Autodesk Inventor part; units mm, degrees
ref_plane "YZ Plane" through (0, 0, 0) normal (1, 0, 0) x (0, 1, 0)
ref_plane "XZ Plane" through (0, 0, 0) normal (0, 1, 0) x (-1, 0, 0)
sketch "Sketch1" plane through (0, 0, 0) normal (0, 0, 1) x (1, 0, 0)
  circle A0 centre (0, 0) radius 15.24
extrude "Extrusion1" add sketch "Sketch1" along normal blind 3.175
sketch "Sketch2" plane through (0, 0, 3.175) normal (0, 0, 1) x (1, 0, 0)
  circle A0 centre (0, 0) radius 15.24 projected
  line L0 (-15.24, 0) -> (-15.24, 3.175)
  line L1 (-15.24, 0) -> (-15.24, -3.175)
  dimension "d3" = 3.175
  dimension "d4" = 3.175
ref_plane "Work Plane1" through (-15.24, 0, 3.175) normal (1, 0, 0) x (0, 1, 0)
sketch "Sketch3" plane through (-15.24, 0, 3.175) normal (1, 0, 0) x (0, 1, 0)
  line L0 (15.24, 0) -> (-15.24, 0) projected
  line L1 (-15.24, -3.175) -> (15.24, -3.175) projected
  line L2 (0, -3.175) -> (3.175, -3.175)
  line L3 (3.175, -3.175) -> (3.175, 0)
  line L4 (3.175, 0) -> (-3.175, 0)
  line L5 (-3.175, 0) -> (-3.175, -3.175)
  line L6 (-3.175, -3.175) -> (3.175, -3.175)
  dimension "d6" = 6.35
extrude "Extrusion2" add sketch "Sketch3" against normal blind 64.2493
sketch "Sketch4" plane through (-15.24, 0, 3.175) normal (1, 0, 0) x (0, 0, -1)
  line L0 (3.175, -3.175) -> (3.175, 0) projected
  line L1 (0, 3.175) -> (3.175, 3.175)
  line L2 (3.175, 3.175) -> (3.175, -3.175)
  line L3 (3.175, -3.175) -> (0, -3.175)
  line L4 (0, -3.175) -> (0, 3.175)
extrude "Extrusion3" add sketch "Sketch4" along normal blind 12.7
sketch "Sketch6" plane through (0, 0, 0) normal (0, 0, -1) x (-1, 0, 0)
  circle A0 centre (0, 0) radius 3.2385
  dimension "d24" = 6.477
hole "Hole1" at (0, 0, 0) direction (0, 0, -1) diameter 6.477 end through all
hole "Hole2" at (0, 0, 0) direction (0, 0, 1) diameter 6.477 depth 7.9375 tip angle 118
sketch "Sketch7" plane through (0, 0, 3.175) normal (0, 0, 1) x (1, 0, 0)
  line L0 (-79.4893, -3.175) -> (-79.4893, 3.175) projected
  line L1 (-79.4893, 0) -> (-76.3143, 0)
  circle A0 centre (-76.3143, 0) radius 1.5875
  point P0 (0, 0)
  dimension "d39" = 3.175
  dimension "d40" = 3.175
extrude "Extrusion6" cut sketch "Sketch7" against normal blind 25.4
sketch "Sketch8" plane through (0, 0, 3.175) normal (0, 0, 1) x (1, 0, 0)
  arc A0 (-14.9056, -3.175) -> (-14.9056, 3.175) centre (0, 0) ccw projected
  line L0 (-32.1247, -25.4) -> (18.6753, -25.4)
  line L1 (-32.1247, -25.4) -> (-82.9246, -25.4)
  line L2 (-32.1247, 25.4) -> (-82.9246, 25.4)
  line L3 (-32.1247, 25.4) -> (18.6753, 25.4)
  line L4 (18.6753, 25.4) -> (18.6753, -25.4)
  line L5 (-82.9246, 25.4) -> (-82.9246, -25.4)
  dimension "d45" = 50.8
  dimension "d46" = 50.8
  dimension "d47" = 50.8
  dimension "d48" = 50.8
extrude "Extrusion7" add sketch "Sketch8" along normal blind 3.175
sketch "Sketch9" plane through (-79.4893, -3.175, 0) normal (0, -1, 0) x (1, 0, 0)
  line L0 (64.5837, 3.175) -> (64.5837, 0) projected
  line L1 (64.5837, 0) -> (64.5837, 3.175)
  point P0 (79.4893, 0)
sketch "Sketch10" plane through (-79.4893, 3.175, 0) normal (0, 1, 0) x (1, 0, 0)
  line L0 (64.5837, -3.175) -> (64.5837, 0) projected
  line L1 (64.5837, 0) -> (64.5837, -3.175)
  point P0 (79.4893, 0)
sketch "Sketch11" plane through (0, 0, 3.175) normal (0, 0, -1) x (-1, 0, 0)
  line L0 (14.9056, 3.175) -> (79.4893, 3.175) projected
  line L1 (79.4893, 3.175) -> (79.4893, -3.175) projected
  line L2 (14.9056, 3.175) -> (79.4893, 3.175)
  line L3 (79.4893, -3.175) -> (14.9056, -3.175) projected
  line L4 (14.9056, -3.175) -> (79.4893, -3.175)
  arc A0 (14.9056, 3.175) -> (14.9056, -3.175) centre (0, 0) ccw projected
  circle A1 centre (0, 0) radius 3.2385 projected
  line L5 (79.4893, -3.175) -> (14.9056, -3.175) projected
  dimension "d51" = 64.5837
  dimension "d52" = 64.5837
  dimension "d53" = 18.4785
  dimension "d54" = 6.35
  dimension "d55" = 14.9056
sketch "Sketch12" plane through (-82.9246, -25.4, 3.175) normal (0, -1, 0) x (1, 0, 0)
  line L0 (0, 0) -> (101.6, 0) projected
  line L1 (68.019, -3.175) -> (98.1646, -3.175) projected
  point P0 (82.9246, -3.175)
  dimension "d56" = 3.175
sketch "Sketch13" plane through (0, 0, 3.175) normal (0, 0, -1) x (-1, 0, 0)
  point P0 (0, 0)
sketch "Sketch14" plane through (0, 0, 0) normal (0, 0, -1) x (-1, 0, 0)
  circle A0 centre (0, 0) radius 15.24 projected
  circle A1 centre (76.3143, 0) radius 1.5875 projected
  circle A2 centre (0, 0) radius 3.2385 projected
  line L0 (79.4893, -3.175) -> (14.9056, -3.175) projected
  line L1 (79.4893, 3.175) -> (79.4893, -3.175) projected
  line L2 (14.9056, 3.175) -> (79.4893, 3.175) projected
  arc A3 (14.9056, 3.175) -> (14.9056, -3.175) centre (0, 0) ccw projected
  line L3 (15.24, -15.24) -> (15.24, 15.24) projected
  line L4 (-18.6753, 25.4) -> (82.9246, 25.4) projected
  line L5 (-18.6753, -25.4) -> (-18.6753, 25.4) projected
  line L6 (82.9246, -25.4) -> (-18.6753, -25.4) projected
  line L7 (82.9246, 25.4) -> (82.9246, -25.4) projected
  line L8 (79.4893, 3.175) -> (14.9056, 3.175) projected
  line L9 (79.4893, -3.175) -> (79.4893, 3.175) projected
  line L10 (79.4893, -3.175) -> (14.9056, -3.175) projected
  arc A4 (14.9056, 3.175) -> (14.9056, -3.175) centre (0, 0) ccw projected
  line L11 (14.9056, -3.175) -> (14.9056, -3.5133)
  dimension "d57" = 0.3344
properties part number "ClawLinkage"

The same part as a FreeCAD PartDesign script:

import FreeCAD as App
import Part
import Sketcher
from FreeCAD import Vector
Q = App.Units.Quantity


def add_polygon(sketch, points):
    """Adds a closed chain of lines whose ends are joined by coincident constraints."""
    first, n = sketch.GeometryCount, len(points)
    for a, b in zip(points, points[1:] + points[:1]):
        sketch.addGeometry(Part.LineSegment(App.Vector(*a, 0), App.Vector(*b, 0)), False)
    for i in range(n):
        sketch.addConstraint(Sketcher.Constraint("Coincident", first + i, 2, first + (i + 1) % n, 1))

doc = App.newDocument("Part")
params = doc.addObject("Spreadsheet::Sheet", "Params")
for row, (alias, value) in enumerate([
    ("sketch1_diameter", "1.2 in"),
    ("pad1_length", "0.125 in"),
    ("sketch2_width", "0.25 in"),
    ("sketch2_height", "0.125 in"),
    ("pad2_length", "2.5295 in"),
    ("sketch3_width", "0.25 in"),
    ("sketch3_height", "0.125 in"),
    ("pad3_length", "0.5 in"),
    ("sketch4_diameter", "0.255 in"),
    ("hole_diameter", "0.255 in"),
    ("sketch5_diameter", "0.255 in"),
    ("hole2_diameter", "0.255 in"),
    ("hole2_depth", "0.3125 in"),
    ("sketch6_diameter", "0.125 in"),
    ("pocket1_length", "1 in"),
    ("sketch7_height", "2 in"),
    ("sketch7_width", "4 in"),
    ("pad4_length", "0.125 in"),
], start=1):
    params.set(f"A{row}", alias)
    params.set(f"B{row}", "=" + value)
    params.setAlias(f"B{row}", alias)

body = doc.addObject("PartDesign::Body", "Body")
body.AllowCompound = True

sketch1 = doc.addObject("Sketcher::SketchObject", "Sketch")
body.addObject(sketch1)
sketch1.AttachmentSupport = (doc.XY_Plane, [""])
sketch1.MapMode = "FlatFace"
sketch1.addGeometry(Part.Circle(Vector(0, 0, 0), Vector(0, 0, 1), 15), False)
sketch1.addConstraint(Sketcher.Constraint("Coincident", 0, 3, -1, 1))
sketch1.addConstraint(Sketcher.Constraint("Diameter", 0, Q("1.2 in")))
sketch1.setExpression("Constraints[1]", "Params.sketch1_diameter")
pad1 = doc.addObject("PartDesign::Pad", "Pad")
body.addObject(pad1)
pad1.Profile = sketch1
pad1.setExpression("Length", "Params.pad1_length")

sketch2 = doc.addObject("Sketcher::SketchObject", "Sketch001")
body.addObject(sketch2)
sketch2.AttachmentSupport = (doc.YZ_Plane, [""])
sketch2.MapMode = "FlatFace"
sketch2.AttachmentOffset = App.Placement(Vector(0, 0, -0.6 * 25.4), App.Rotation())
add_polygon(sketch2, [(3.2, 0), (3.2, 3.2), (-3.2, 3.2), (-3.2, 0)])
sketch2.addConstraint(Sketcher.Constraint("Vertical", 0))
sketch2.addConstraint(Sketcher.Constraint("Horizontal", 1))
sketch2.addConstraint(Sketcher.Constraint("Vertical", 2))
sketch2.addConstraint(Sketcher.Constraint("Horizontal", 3))
sketch2.addConstraint(Sketcher.Constraint("Symmetric", 2, 2, 3, 2, -1, 1))
sketch2.addConstraint(Sketcher.Constraint("DistanceX", 1, 2, 1, 1, Q("0.25 in")))
sketch2.addConstraint(Sketcher.Constraint("DistanceY", 0, 1, 0, 2, Q("0.125 in")))
sketch2.setExpression("Constraints[9]", "Params.sketch2_width")
sketch2.setExpression("Constraints[10]", "Params.sketch2_height")
pad2 = doc.addObject("PartDesign::Pad", "Pad001")
body.addObject(pad2)
pad2.Profile = sketch2
pad2.setExpression("Length", "Params.pad2_length")
pad2.Reversed = True

sketch3 = doc.addObject("Sketcher::SketchObject", "Sketch002")
body.addObject(sketch3)
sketch3.AttachmentSupport = (doc.YZ_Plane, [""])
sketch3.MapMode = "FlatFace"
sketch3.AttachmentOffset = App.Placement(Vector(0, 0, -0.6 * 25.4), App.Rotation())
add_polygon(sketch3, [(-3.2, 3.2), (-3.2, 0), (3.2, 0), (3.2, 3.2)])
sketch3.addConstraint(Sketcher.Constraint("Vertical", 0))
sketch3.addConstraint(Sketcher.Constraint("Horizontal", 1))
sketch3.addConstraint(Sketcher.Constraint("Vertical", 2))
sketch3.addConstraint(Sketcher.Constraint("Horizontal", 3))
sketch3.addConstraint(Sketcher.Constraint("Symmetric", 0, 2, 1, 2, -1, 1))
sketch3.addConstraint(Sketcher.Constraint("DistanceX", 1, 1, 1, 2, Q("0.25 in")))
sketch3.addConstraint(Sketcher.Constraint("DistanceY", 0, 2, 0, 1, Q("0.125 in")))
sketch3.setExpression("Constraints[9]", "Params.sketch3_width")
sketch3.setExpression("Constraints[10]", "Params.sketch3_height")
pad3 = doc.addObject("PartDesign::Pad", "Pad002")
body.addObject(pad3)
pad3.Profile = sketch3
pad3.setExpression("Length", "Params.pad3_length")

sketch4 = doc.addObject("Sketcher::SketchObject", "Sketch003")
body.addObject(sketch4)
sketch4.AttachmentSupport = (doc.XY_Plane, [""])
sketch4.MapMode = "FlatFace"
sketch4.addGeometry(Part.Circle(Vector(0, 0, 0), Vector(0, 0, 1), 3.2), False)
sketch4.addConstraint(Sketcher.Constraint("Coincident", 0, 3, -1, 1))
sketch4.addConstraint(Sketcher.Constraint("Diameter", 0, Q("0.255 in")))
sketch4.setExpression("Constraints[1]", "Params.sketch4_diameter")
doc.recompute()
hole = doc.addObject("PartDesign::Hole", "Hole")
body.addObject(hole)
hole.Profile = sketch4
hole.ThreadType = "None"
hole.setExpression("Diameter", "Params.hole_diameter")
hole.DepthType = "ThroughAll"

sketch5 = doc.addObject("Sketcher::SketchObject", "Sketch004")
body.addObject(sketch5)
sketch5.AttachmentSupport = (doc.XY_Plane, [""])
sketch5.MapMode = "FlatFace"
sketch5.addGeometry(Part.Circle(Vector(0, 0, 0), Vector(0, 0, 1), 3.2), False)
sketch5.addConstraint(Sketcher.Constraint("Coincident", 0, 3, -1, 1))
sketch5.addConstraint(Sketcher.Constraint("Diameter", 0, Q("0.255 in")))
sketch5.setExpression("Constraints[1]", "Params.sketch5_diameter")
doc.recompute()
hole2 = doc.addObject("PartDesign::Hole", "Hole001")
body.addObject(hole2)
hole2.Profile = sketch5
hole2.ThreadType = "None"
hole2.setExpression("Diameter", "Params.hole2_diameter")
hole2.DepthType = "Dimension"
hole2.setExpression("Depth", "Params.hole2_depth")
hole2.DrillPoint = "Angled"
hole2.DrillPointAngle = 118
hole2.Reversed = True

sketch6 = doc.addObject("Sketcher::SketchObject", "Sketch005")
body.addObject(sketch6)
sketch6.AttachmentSupport = (doc.XY_Plane, [""])
sketch6.MapMode = "FlatFace"
sketch6.AttachmentOffset = App.Placement(Vector(0, 0, 0.125 * 25.4), App.Rotation())
sketch6.addGeometry(Part.Circle(Vector(-76.3, 0, 0), Vector(0, 0, 1), 1.6), False)
sketch6.addConstraint(Sketcher.Constraint("PointOnObject", 0, 3, -1))
sketch6.addConstraint(Sketcher.Constraint("Diameter", 0, Q("0.125 in")))
sketch6.addConstraint(Sketcher.Constraint("DistanceX", 0, 3, -1, 1, Q("3.0045 in")))
sketch6.setExpression("Constraints[1]", "Params.sketch6_diameter")
pocket1 = doc.addObject("PartDesign::Pocket", "Pocket")
body.addObject(pocket1)
pocket1.Profile = sketch6
pocket1.setExpression("Length", "Params.pocket1_length")

sketch7 = doc.addObject("Sketcher::SketchObject", "Sketch006")
body.addObject(sketch7)
sketch7.AttachmentSupport = (doc.XY_Plane, [""])
sketch7.MapMode = "FlatFace"
sketch7.AttachmentOffset = App.Placement(Vector(0, 0, 0.125 * 25.4), App.Rotation())
add_polygon(sketch7, [(-83, -25), (19, -25), (19, 25), (-83, 25)])
sketch7.addConstraint(Sketcher.Constraint("Horizontal", 0))
sketch7.addConstraint(Sketcher.Constraint("Vertical", 1))
sketch7.addConstraint(Sketcher.Constraint("Horizontal", 2))
sketch7.addConstraint(Sketcher.Constraint("Vertical", 3))
sketch7.addConstraint(Sketcher.Constraint("DistanceY", 1, 1, 1, 2, Q("2 in")))
sketch7.addConstraint(Sketcher.Constraint("DistanceX", 0, 1, 0, 2, Q("4 in")))
sketch7.addConstraint(Sketcher.Constraint("DistanceY", 0, 2, -1, 1, Q("1 in")))
sketch7.addConstraint(Sketcher.Constraint("DistanceX", -1, 1, 0, 2, 18.6753))
sketch7.setExpression("Constraints[8]", "Params.sketch7_height")
sketch7.setExpression("Constraints[9]", "Params.sketch7_width")
pad4 = doc.addObject("PartDesign::Pad", "Pad003")
body.addObject(pad4)
pad4.Profile = sketch7
pad4.setExpression("Length", "Params.pad4_length")

doc.recompute()
